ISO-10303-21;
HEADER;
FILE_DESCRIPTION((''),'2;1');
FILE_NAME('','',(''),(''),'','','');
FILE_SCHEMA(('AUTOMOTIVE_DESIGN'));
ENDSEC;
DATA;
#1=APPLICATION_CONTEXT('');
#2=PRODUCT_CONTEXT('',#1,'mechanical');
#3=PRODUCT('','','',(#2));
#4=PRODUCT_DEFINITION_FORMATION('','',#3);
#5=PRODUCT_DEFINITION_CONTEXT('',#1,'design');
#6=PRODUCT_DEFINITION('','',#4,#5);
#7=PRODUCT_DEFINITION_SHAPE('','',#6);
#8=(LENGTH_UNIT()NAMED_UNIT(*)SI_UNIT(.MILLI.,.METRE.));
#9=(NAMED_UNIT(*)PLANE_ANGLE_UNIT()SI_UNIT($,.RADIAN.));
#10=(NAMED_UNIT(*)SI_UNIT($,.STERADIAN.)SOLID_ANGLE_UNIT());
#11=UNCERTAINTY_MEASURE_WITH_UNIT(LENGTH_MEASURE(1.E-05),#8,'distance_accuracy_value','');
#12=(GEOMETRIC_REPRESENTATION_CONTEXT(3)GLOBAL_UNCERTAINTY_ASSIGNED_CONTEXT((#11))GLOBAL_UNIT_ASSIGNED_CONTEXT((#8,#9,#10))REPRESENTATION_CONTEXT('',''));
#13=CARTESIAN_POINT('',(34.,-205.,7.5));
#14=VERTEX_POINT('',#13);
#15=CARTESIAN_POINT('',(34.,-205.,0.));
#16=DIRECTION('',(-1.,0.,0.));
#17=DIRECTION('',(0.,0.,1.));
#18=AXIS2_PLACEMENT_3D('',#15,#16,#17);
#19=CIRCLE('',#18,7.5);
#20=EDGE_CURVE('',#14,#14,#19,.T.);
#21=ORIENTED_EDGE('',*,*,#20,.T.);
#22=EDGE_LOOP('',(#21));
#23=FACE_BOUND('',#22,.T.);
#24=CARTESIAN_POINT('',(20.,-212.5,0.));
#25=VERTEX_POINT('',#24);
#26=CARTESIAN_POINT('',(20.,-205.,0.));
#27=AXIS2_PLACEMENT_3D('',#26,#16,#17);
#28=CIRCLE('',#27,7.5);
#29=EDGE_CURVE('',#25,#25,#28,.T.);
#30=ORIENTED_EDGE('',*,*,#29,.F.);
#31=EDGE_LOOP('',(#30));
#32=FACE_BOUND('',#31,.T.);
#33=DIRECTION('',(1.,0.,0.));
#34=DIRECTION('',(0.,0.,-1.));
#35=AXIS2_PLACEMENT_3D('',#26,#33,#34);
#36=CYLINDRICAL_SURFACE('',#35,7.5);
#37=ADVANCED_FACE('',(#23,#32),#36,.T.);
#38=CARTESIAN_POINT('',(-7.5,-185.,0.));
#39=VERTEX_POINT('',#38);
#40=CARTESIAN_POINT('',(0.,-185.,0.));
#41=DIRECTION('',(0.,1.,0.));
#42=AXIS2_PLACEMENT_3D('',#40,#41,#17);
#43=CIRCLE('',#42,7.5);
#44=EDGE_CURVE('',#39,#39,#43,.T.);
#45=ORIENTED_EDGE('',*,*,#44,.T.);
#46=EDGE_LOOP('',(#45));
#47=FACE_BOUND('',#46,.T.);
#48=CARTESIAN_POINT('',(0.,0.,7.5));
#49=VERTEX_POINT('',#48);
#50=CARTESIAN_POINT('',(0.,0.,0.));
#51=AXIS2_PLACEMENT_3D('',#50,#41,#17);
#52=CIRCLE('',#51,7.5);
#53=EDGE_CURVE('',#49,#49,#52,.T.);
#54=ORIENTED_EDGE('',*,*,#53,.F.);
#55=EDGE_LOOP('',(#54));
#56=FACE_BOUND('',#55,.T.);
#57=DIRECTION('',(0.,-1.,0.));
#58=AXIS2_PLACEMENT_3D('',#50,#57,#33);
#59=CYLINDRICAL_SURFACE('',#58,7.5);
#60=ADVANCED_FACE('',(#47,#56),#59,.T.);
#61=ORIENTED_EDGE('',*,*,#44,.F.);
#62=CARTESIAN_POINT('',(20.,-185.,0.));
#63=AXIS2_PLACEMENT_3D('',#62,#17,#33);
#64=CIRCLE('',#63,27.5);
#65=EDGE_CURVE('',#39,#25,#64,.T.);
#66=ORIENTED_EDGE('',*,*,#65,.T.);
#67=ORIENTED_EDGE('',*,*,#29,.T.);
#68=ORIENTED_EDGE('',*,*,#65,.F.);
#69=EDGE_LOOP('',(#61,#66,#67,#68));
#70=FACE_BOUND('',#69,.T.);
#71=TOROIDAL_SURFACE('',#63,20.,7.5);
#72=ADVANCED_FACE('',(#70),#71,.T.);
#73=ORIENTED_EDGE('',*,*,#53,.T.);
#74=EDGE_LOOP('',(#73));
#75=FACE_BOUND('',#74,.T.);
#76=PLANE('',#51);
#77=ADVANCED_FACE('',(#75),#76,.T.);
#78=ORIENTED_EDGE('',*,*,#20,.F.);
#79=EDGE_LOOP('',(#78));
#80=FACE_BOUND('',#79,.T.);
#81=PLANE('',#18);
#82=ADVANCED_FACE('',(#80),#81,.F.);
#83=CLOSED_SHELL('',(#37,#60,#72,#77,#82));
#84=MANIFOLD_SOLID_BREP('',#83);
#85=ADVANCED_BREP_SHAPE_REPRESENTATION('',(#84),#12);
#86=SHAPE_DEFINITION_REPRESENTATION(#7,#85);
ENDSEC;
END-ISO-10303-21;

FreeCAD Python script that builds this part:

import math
import FreeCAD as App
import Part
import Sketcher
from FreeCAD import Vector

doc = App.newDocument("Part")
params = doc.addObject("Spreadsheet::Sheet", "Params")
for row, (alias, value) in enumerate([
    ("sketch1_diameter", "15 mm"),
    ("sketch2_radius", "20 mm"),
    ("sketch2_width", "14 mm"),
    ("sketch2_height", "185 mm"),
], start=1):
    params.set(f"A{row}", alias)
    params.set(f"B{row}", "=" + value)
    params.setAlias(f"B{row}", alias)

body = doc.addObject("PartDesign::Body", "Body")

# Sketch on XZ plane
sketch1 = body.newObject("Sketcher::SketchObject", "Sketch")
sketch1.AttachmentSupport = (doc.getObject("XZ_Plane"), [""])
sketch1.MapMode = "FlatFace"
sketch1.addGeometry(Part.Circle(Vector(0, 0, 0), Vector(0, 0, 1), 8), False)
sketch1.addConstraint(Sketcher.Constraint("Coincident", 0, 3, -1, 1))
sketch1.addConstraint(Sketcher.Constraint("Diameter", 0, 15.0))
sketch1.setExpression("Constraints[1]", "Params.sketch1_diameter")

# Sketch on XY plane
sketch2 = body.newObject("Sketcher::SketchObject", "Sketch001")
sketch2.AttachmentSupport = (doc.getObject("XY_Plane"), [""])
sketch2.MapMode = "FlatFace"
sketch2.addGeometry(Part.LineSegment(Vector(0, 0, 0), Vector(0, -185, 0)), False)
sketch2.addGeometry(Part.ArcOfCircle(Part.Circle(Vector(20, -185, 0), Vector(0, 0, 1), 20), math.radians(180), math.radians(270)), False)
sketch2.addGeometry(Part.LineSegment(Vector(20, -205, 0), Vector(34, -205, 0)), False)
sketch2.addConstraint(Sketcher.Constraint("Tangent", 0, 2, 1, 1))
sketch2.addConstraint(Sketcher.Constraint("Tangent", 1, 2, 2, 1))
sketch2.addConstraint(Sketcher.Constraint("Vertical", 0))
sketch2.addConstraint(Sketcher.Constraint("Horizontal", 2))
sketch2.addConstraint(Sketcher.Constraint("Coincident", 0, 1, -1, 1))
sketch2.addConstraint(Sketcher.Constraint("Radius", 1, 20.0))
sketch2.addConstraint(Sketcher.Constraint("DistanceX", 2, 1, 2, 2, 14.0))
sketch2.addConstraint(Sketcher.Constraint("DistanceY", 0, 2, 0, 1, 185.0))
sketch2.setExpression("Constraints[5]", "Params.sketch2_radius")
sketch2.setExpression("Constraints[6]", "Params.sketch2_width")
sketch2.setExpression("Constraints[7]", "Params.sketch2_height")
doc.recompute()

additivepipe = body.newObject("PartDesign::AdditivePipe", "AdditivePipe")
additivepipe.Profile = sketch1
additivepipe.Spine = (sketch2, ["Edge1", "Edge2", "Edge3"])

doc.recompute()
